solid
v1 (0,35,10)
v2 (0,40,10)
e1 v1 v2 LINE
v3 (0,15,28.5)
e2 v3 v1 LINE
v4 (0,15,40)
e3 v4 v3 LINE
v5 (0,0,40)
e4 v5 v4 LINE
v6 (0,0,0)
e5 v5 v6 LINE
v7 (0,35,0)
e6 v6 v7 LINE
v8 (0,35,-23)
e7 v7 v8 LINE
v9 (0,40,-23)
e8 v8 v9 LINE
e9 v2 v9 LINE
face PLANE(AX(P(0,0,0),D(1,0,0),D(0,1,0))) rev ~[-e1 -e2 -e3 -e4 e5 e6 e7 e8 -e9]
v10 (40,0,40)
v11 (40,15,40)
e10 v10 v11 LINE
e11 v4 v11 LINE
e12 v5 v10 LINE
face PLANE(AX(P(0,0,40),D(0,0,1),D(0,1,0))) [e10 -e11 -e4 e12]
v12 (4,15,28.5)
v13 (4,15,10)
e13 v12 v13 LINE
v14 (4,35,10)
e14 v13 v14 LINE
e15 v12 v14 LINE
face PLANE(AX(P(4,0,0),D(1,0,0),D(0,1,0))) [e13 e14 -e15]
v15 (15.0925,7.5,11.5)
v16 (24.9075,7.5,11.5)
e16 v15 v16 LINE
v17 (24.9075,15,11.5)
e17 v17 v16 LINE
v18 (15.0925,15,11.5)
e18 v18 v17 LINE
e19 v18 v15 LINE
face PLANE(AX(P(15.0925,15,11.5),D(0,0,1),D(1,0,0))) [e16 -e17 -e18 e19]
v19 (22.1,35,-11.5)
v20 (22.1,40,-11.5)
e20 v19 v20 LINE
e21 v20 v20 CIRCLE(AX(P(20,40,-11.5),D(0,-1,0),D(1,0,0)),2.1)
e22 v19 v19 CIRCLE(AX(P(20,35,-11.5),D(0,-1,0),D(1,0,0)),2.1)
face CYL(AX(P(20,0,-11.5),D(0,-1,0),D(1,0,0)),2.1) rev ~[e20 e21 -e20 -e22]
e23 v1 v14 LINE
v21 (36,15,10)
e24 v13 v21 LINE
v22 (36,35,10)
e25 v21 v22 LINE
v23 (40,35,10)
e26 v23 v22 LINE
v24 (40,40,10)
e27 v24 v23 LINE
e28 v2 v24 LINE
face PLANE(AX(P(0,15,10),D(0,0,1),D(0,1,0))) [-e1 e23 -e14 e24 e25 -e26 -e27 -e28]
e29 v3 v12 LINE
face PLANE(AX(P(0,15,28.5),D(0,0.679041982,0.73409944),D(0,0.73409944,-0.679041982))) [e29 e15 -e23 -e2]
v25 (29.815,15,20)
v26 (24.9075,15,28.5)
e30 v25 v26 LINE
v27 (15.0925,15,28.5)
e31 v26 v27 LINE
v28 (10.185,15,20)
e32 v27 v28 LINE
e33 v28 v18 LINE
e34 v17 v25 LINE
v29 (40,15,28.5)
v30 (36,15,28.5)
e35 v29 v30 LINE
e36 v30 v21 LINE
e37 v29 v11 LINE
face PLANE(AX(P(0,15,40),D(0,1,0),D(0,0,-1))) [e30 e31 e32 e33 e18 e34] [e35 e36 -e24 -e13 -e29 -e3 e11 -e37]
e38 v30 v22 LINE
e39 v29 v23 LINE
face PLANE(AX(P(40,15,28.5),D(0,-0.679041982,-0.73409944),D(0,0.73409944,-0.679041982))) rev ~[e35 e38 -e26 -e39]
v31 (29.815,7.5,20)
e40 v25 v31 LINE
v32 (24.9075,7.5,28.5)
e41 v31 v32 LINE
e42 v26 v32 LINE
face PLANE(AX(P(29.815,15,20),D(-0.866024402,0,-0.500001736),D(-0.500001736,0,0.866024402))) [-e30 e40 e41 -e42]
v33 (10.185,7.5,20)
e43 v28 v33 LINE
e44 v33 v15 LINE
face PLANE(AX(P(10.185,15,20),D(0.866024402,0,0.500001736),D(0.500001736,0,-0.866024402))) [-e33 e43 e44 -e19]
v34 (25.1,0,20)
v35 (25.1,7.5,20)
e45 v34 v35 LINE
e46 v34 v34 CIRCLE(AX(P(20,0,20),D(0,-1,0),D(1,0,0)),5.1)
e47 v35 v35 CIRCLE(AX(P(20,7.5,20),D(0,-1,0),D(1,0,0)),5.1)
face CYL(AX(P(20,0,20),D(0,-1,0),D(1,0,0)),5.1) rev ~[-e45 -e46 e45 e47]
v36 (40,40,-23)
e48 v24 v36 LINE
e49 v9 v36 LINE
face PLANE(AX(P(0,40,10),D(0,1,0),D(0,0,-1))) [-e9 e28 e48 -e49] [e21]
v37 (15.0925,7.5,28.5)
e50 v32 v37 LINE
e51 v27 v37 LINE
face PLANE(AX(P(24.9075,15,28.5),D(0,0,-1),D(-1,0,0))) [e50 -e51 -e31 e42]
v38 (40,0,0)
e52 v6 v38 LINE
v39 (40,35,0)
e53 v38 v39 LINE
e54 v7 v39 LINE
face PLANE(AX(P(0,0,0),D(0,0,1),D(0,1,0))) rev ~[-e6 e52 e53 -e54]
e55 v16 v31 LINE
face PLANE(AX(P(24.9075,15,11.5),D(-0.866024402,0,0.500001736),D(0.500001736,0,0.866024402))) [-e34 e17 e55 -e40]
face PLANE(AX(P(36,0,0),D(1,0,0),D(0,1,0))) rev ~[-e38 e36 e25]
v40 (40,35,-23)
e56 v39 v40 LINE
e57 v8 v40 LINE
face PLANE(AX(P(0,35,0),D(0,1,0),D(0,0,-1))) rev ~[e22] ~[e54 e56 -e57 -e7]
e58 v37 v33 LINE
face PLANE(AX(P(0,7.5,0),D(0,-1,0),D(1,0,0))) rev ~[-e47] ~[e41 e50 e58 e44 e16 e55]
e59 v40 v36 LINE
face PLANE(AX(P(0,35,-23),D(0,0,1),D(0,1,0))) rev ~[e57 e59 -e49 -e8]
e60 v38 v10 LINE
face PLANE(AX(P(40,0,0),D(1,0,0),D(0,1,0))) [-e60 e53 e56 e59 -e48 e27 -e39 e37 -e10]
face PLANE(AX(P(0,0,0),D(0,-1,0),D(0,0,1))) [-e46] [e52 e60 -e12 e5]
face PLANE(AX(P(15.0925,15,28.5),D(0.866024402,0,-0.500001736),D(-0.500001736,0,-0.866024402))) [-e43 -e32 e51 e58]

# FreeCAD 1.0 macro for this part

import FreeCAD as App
import Part
import Sketcher

V = App.Vector
Q = App.Units.Quantity


def add_polygon(sketch, points):
    """Adds a closed chain of lines whose ends are joined by coincident constraints."""
    first, n = sketch.GeometryCount, len(points)
    for a, b in zip(points, points[1:] + points[:1]):
        sketch.addGeometry(Part.LineSegment(App.Vector(*a, 0), App.Vector(*b, 0)), False)
    for i in range(n):
        sketch.addConstraint(Sketcher.Constraint("Coincident", first + i, 2, first + (i + 1) % n, 1))

doc = App.newDocument("Part")
body = doc.addObject("PartDesign::Body", "Body")

# Sketch on YZ plane
sketch1 = doc.addObject("Sketcher::SketchObject", "Sketch")
body.addObject(sketch1)
sketch1.AttachmentSupport = (doc.YZ_Plane, [""])
sketch1.MapMode = "FlatFace"
add_polygon(sketch1, [(0, 40), (0, 0), (35, 0), (35, -23), (40, -23), (40, 10), (15, 10), (15, 40)])  # lines 0-7
sketch1.addConstraint([
    Sketcher.Constraint("Vertical", 0),
    Sketcher.Constraint("Horizontal", 1),
    Sketcher.Constraint("Vertical", 2),
    Sketcher.Constraint("Horizontal", 3),
    Sketcher.Constraint("Vertical", 4),
    Sketcher.Constraint("Horizontal", 5),
    Sketcher.Constraint("Vertical", 6),
    Sketcher.Constraint("Horizontal", 7),
    Sketcher.Constraint("Coincident", 0, 2, -1, 1),
    Sketcher.Constraint("DistanceX", 1, 1, 1, 2, Q("35 mm")),
    Sketcher.Constraint("DistanceX", 3, 1, 3, 2, Q("5 mm")),
    Sketcher.Constraint("DistanceY", 2, 2, 2, 1, Q("23 mm")),
    Sketcher.Constraint("DistanceY", -1, 1, 4, 2, Q("10 mm")),
    Sketcher.Constraint("DistanceX", 5, 2, 1, 2, Q("20 mm")),
    Sketcher.Constraint("DistanceY", 0, 2, 0, 1, Q("40 mm")),
])
pad1 = doc.addObject("PartDesign::Pad", "Pad")
body.addObject(pad1)
pad1.Profile = sketch1
pad1.Length = 40

# Sketch on XZ plane
sketch2 = doc.addObject("Sketcher::SketchObject", "Sketch001")
body.addObject(sketch2)
sketch2.AttachmentSupport = (doc.XZ_Plane, [""])
sketch2.MapMode = "FlatFace"
sketch2.addGeometry([
    Part.Circle(V(20, 20, 0), V(0, 0, 1), 5.1),
    Part.Circle(V(20, -11.5, 0), V(0, 0, 1), 2.1),
], False)
sketch2.addConstraint([
    Sketcher.Constraint("Vertical", 0, 3, 1, 3),
    Sketcher.Constraint("Diameter", 0, Q("10.2 mm")),
    Sketcher.Constraint("Diameter", 1, Q("4.2 mm")),
    Sketcher.Constraint("DistanceY", 1, 3, -1, 1, Q("11.5 mm")),
    Sketcher.Constraint("DistanceX", -1, 1, 0, 3, Q("20 mm")),
    Sketcher.Constraint("DistanceY", -1, 1, 0, 3, Q("20 mm")),
])
pocket1 = doc.addObject("PartDesign::Pocket", "Pocket")
body.addObject(pocket1)
pocket1.Profile = sketch2
pocket1.Type = "ThroughAll"

# Sketch on XZ plane
sketch3 = doc.addObject("Sketcher::SketchObject", "Sketch002")
body.addObject(sketch3)
sketch3.AttachmentSupport = (doc.XZ_Plane, [""])
sketch3.MapMode = "FlatFace"
sketch3.AttachmentOffset = App.Placement(V(0, 0, -15), App.Rotation())
add_polygon(sketch3, [(25, 12), (30, 20), (25, 28), (15, 28), (10, 20), (15, 12)])  # lines 0-5
sketch3.addGeometry(Part.Circle(V(20, 20, 0), V(0, 0, 1), 5), False)  # 6
sketch3.addConstraint([
    Sketcher.Constraint("Horizontal", 2),
    Sketcher.Constraint("Horizontal", 5),
    Sketcher.Constraint("Parallel", 0, 3),
    Sketcher.Constraint("Parallel", 1, 4),
    Sketcher.Constraint("Horizontal", 6, 3, 0, 2),
    Sketcher.Constraint("Horizontal", 0, 2, 3, 2),
    Sketcher.Constraint("Vertical", 2, 2, 4, 2),
    Sketcher.Constraint("Vertical", 1, 2, 5, 2),
    Sketcher.Constraint("Diameter", 6, Q("10.2 mm")),
    Sketcher.Constraint("DistanceY", -1, 1, 4, 2, Q("11.5 mm")),
    Sketcher.Constraint("DistanceY", 6, 3, 1, 2, Q("8.5 mm")),
    Sketcher.Constraint("Angle", 0, Q("60 deg")),
    Sketcher.Constraint("DistanceX", -1, 1, 6, 3, Q("20 mm")),
    Sketcher.Constraint("DistanceX", 2, 2, 2, 1, Q("9.815 mm")),
    Sketcher.Constraint("DistanceX", -1, 1, 0, 2, Q("29.815 mm")),
])
pocket2 = doc.addObject("PartDesign::Pocket", "Pocket001")
body.addObject(pocket2)
pocket2.Profile = sketch3
pocket2.Length = 7.5
pocket2.Reversed = True

# Sketch on YZ plane
sketch4 = doc.addObject("Sketcher::SketchObject", "Sketch003")
body.addObject(sketch4)
sketch4.AttachmentSupport = (doc.YZ_Plane, [""])
sketch4.MapMode = "FlatFace"
add_polygon(sketch4, [(15, 10), (35, 10), (15, 28)])  # lines 0-2
sketch4.addConstraint([
    Sketcher.Constraint("Horizontal", 0),
    Sketcher.Constraint("Vertical", 2),
    Sketcher.Constraint("DistanceX", 0, 1, 0, 2, Q("20 mm")),
    Sketcher.Constraint("DistanceY", 2, 2, 2, 1, Q("18.5 mm")),
    Sketcher.Constraint("DistanceX", -1, 1, 0, 2, Q("35 mm")),
    Sketcher.Constraint("DistanceY", -1, 1, 0, 2, Q("10 mm")),
])
pad2 = doc.addObject("PartDesign::Pad", "Pad001")
body.addObject(pad2)
pad2.Profile = sketch4
pad2.Length = 4

# Sketch on YZ plane
sketch5 = doc.addObject("Sketcher::SketchObject", "Sketch004")
body.addObject(sketch5)
sketch5.AttachmentSupport = (doc.YZ_Plane, [""])
sketch5.MapMode = "FlatFace"
sketch5.AttachmentOffset = App.Placement(V(0, 0, 40), App.Rotation())
add_polygon(sketch5, [(15, 10), (35, 10), (15, 28)])  # lines 0-2
sketch5.addConstraint([
    Sketcher.Constraint("Horizontal", 0),
    Sketcher.Constraint("Vertical", 2),
    Sketcher.Constraint("DistanceX", 0, 1, 0, 2, Q("20 mm")),
    Sketcher.Constraint("DistanceY", 2, 2, 2, 1, Q("18.5 mm")),
    Sketcher.Constraint("DistanceX", -1, 1, 0, 2, Q("35 mm")),
    Sketcher.Constraint("DistanceY", -1, 1, 0, 2, Q("10 mm")),
])
pad3 = doc.addObject("PartDesign::Pad", "Pad002")
body.addObject(pad3)
pad3.Profile = sketch5
pad3.Length = 4
pad3.Reversed = True

# Sketch on XY plane
sketch6 = doc.addObject("Sketcher::SketchObject", "Sketch005")
body.addObject(sketch6)
sketch6.AttachmentSupport = (doc.XY_Plane, [""])
sketch6.MapMode = "FlatFace"
sketch6.AttachmentOffset = App.Placement(V(0, 0, 10), App.Rotation())
sketch6.addGeometry([
    Part.Circle(V(10, 27.5, 0), V(0, 0, 1), 1.6),
    Part.Circle(V(30, 27.5, 0), V(0, 0, 1), 1.6),
], False)
sketch6.addConstraint([
    Sketcher.Constraint("Equal", 0, 1),
    Sketcher.Constraint("Horizontal", 0, 3, 1, 3),
    Sketcher.Constraint("Diameter", 0, Q("3.2 mm")),
    Sketcher.Constraint("DistanceX", -1, 1, 0, 3, Q("10 mm")),
    Sketcher.Constraint("DistanceX", 0, 3, 1, 3, Q("20 mm")),
    Sketcher.Constraint("DistanceY", -1, 1, 0, 3, Q("27.5 mm")),
])
pocket3 = doc.addObject("PartDesign::Pocket", "Pocket002")
body.addObject(pocket3)
pocket3.Profile = sketch6
pocket3.Type = "ThroughAll"
pocket3.Reversed = True

doc.recompute()
